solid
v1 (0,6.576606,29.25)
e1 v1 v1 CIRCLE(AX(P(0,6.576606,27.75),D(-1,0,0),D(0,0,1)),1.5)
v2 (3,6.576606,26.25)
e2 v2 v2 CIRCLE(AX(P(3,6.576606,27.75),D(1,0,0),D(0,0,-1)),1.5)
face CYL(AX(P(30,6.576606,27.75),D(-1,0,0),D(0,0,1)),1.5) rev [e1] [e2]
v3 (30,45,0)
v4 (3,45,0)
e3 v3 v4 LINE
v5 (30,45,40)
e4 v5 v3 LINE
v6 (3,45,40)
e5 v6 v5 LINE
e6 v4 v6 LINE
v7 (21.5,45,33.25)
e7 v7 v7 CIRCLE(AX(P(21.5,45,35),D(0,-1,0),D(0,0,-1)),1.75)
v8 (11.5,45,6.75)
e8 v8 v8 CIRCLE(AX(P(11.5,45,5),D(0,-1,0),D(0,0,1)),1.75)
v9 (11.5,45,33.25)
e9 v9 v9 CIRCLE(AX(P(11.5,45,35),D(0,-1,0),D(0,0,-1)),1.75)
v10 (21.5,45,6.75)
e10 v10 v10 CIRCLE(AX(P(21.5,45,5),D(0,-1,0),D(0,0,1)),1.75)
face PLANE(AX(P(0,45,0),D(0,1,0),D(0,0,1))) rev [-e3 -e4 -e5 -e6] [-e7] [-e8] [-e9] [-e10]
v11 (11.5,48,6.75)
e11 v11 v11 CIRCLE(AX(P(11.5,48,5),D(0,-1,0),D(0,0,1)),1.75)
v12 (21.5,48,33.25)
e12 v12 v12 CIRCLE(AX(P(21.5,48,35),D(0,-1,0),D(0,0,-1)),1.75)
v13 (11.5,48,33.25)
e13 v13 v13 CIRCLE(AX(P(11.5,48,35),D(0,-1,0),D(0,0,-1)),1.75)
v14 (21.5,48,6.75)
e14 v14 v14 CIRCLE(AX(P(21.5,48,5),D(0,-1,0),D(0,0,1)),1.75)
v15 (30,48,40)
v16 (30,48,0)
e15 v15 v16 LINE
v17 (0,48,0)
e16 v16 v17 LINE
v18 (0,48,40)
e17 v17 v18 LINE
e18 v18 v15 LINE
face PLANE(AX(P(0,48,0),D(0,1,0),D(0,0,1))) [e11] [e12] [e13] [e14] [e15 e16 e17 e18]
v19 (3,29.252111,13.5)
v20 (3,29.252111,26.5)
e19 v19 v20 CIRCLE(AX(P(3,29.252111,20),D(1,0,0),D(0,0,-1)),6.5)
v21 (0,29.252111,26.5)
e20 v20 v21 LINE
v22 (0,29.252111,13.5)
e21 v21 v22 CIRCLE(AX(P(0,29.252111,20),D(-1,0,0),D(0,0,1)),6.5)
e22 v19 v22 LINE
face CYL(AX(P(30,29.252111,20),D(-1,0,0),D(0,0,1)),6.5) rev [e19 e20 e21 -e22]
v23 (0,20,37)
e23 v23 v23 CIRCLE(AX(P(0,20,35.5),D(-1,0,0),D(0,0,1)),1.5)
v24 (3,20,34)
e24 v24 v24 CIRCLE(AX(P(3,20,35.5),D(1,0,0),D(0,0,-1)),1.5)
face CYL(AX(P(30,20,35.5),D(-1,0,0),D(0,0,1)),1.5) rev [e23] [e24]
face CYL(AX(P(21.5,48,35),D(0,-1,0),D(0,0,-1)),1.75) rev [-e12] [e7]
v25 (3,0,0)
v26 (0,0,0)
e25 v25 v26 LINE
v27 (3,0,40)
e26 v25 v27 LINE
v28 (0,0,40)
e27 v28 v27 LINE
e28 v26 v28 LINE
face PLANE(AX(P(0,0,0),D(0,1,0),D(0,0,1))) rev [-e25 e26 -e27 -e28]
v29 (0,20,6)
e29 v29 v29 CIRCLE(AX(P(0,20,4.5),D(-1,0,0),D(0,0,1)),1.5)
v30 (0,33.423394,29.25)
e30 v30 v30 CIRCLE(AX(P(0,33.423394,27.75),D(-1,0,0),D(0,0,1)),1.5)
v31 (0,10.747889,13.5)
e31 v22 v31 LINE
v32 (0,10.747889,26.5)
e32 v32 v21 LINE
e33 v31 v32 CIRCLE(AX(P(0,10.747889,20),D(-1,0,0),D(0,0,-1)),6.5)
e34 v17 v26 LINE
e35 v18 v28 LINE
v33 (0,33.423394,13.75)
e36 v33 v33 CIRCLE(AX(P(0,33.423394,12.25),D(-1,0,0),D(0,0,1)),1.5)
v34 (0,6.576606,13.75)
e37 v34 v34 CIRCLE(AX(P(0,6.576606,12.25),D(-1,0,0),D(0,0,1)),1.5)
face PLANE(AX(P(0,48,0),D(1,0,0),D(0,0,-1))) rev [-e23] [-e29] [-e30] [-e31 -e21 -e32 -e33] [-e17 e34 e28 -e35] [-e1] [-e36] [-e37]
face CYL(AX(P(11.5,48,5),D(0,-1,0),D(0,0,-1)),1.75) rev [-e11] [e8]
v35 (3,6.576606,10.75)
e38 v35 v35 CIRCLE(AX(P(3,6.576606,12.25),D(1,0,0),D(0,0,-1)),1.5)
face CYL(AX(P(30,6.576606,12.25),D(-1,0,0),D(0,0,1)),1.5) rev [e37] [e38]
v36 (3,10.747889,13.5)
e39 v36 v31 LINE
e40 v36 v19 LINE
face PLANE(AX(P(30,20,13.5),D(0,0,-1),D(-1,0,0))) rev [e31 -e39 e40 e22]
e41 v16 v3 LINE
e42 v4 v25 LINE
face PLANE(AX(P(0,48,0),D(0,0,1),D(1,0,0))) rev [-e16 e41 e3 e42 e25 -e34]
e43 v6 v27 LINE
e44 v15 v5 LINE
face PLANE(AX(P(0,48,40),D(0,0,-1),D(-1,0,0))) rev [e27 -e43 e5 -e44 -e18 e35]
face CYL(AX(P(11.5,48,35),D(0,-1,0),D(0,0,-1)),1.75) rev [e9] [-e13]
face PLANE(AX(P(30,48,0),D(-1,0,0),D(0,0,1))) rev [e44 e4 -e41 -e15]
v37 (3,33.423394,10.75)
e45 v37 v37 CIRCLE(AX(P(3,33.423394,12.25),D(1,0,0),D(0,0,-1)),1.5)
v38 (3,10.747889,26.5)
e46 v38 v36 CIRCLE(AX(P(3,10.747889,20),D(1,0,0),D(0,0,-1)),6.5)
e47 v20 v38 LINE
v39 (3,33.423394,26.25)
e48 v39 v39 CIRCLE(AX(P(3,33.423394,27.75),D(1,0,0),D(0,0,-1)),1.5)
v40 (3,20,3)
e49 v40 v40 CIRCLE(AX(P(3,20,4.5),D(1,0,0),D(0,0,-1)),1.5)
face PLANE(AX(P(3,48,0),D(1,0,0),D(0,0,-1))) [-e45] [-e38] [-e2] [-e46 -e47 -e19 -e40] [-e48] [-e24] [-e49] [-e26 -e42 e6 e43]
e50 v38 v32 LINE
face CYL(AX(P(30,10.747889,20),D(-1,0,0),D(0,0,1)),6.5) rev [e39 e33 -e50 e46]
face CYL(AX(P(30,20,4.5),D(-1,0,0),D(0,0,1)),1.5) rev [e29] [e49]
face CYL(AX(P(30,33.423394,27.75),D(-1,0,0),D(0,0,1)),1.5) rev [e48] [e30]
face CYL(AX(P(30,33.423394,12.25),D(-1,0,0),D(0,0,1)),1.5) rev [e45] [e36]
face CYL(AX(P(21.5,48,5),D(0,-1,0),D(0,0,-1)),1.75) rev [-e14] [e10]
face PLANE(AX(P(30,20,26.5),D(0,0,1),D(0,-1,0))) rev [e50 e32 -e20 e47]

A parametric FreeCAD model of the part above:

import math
import FreeCAD as App
import Part
import Sketcher

V = App.Vector


def faces_at(feature, points):
    """Names of the faces that lie closest to the given points."""
    faces = feature.Shape.Faces
    near = lambda p: min(range(len(faces)), key=lambda i: faces[i].distToShape(Part.Vertex(*p))[0])
    return sorted({f"Face{near(p) + 1}" for p in points})


def add_polygon(sketch, points):
    """Adds a closed chain of lines whose ends are joined by coincident constraints."""
    first, n = sketch.GeometryCount, len(points)
    for a, b in zip(points, points[1:] + points[:1]):
        sketch.addGeometry(Part.LineSegment(App.Vector(*a, 0), App.Vector(*b, 0)), False)
    for i in range(n):
        sketch.addConstraint(Sketcher.Constraint("Coincident", first + i, 2, first + (i + 1) % n, 1))

doc = App.newDocument("Part")
body = doc.addObject("PartDesign::Body", "Body")

sketch1 = body.newObject("Sketcher::SketchObject", "Sketch")
sketch1.AttachmentSupport = (doc.getObject("XZ_Plane"), [""])
sketch1.MapMode = "FlatFace"
add_polygon(sketch1, [(0, 0), (0, 40), (30, 40), (30, 0)])
sketch1.addConstraint([
    Sketcher.Constraint("Vertical", 0),
    Sketcher.Constraint("Horizontal", 1),
    Sketcher.Constraint("Vertical", 2),
    Sketcher.Constraint("Horizontal", 3),
    Sketcher.Constraint("Coincident", 3, 2, -1, 1),
    Sketcher.Constraint("DistanceX", 1, 1, 1, 2, 30.0),
    Sketcher.Constraint("DistanceY", 0, 1, 0, 2, 40.0),
])
pad1 = body.newObject("PartDesign::Pad", "Pad")
pad1.Profile = sketch1
pad1.Length = 48
pad1.Reversed = True
doc.recompute()

thickness = body.newObject("PartDesign::Thickness", "Thickness")
thickness.Base = (pad1, faces_at(pad1, [
    (15, 0, 20),
    (15, 24, 0),
    (30, 24, 20),
    (15, 24, 40),
]))
thickness.Value = 3
thickness.Reversed = True
thickness.Join = "Intersection"

sketch2 = body.newObject("Sketcher::SketchObject", "Sketch001")
sketch2.AttachmentSupport = (doc.getObject("XZ_Plane"), [""])
sketch2.MapMode = "FlatFace"
sketch2.AttachmentOffset = App.Placement(V(0, 0, -45), App.Rotation())
sketch2.addGeometry([
    Part.Circle(V(11.5, 35, 0), V(0, 0, 1), 1.8),
    Part.Circle(V(21.5, 35, 0), V(0, 0, 1), 1.8),
    Part.Circle(V(21.5, 5, 0), V(0, 0, 1), 1.8),
    Part.Circle(V(11.5, 5, 0), V(0, 0, 1), 1.8),
], False)
sketch2.addConstraint([
    Sketcher.Constraint("Equal", 0, 1),
    Sketcher.Constraint("Equal", 1, 2),
    Sketcher.Constraint("Equal", 2, 3),
    Sketcher.Constraint("Horizontal", 0, 3, 1, 3),
    Sketcher.Constraint("Horizontal", 2, 3, 3, 3),
    Sketcher.Constraint("Vertical", 1, 3, 2, 3),
    Sketcher.Constraint("Vertical", 0, 3, 3, 3),
    Sketcher.Constraint("Diameter", 0, 3.5),
    Sketcher.Constraint("DistanceY", -1, 1, 0, 3, 35.0),
    Sketcher.Constraint("DistanceY", -1, 1, 2, 3, 5.0),
    Sketcher.Constraint("DistanceX", 0, 3, 1, 3, 10.0),
    Sketcher.Constraint("DistanceX", -1, 1, 0, 3, 11.5),
])
pocket1 = body.newObject("PartDesign::Pocket", "Pocket")
pocket1.Profile = sketch2
pocket1.Type = "ThroughAll"

sketch3 = body.newObject("Sketcher::SketchObject", "Sketch002")
sketch3.AttachmentSupport = (doc.getObject("YZ_Plane"), [""])
sketch3.MapMode = "FlatFace"
sketch3.addGeometry([
    Part.Circle(V(6.6, 27.8, 0), V(0, 0, 1), 1.5),
    Part.Circle(V(6.6, 12.2, 0), V(0, 0, 1), 1.5),
    Part.Circle(V(20, 4.5, 0), V(0, 0, 1), 1.5),
    Part.Circle(V(33.4, 12.2, 0), V(0, 0, 1), 1.5),
    Part.Circle(V(33.4, 27.8, 0), V(0, 0, 1), 1.5),
    Part.Circle(V(20, 35.5, 0), V(0, 0, 1), 1.5),
    Part.ArcOfCircle(Part.Circle(V(29.3, 20, 0), V(0, 0, 1), 6.5), math.radians(-90), math.radians(90)),
    Part.LineSegment(V(29.3, 13.5, 0), V(10.7, 13.5, 0)),
    Part.ArcOfCircle(Part.Circle(V(10.7, 20, 0), V(0, 0, 1), 6.5), math.radians(90), math.radians(270)),
    Part.LineSegment(V(10.7, 26.5, 0), V(29.3, 26.5, 0)),
], False)
sketch3.addConstraint([
    Sketcher.Constraint("Tangent", 6, 1, 7, 1),
    Sketcher.Constraint("Tangent", 7, 2, 8, 2),
    Sketcher.Constraint("Tangent", 8, 1, 9, 1),
    Sketcher.Constraint("Tangent", 9, 2, 6, 2),
    Sketcher.Constraint("Horizontal", 7),
    Sketcher.Constraint("Horizontal", 9),
    Sketcher.Constraint("Equal", 0, 1),
    Sketcher.Constraint("Equal", 1, 2),
    Sketcher.Constraint("Equal", 2, 3),
    Sketcher.Constraint("Equal", 3, 4),
    Sketcher.Constraint("Equal", 4, 5),
    Sketcher.Constraint("Horizontal", 1, 3, 3, 3),
    Sketcher.Constraint("Horizontal", 0, 3, 4, 3),
    Sketcher.Constraint("Vertical", 0, 3, 1, 3),
    Sketcher.Constraint("Vertical", 3, 3, 4, 3),
    Sketcher.Constraint("Vertical", 2, 3, 5, 3),
    Sketcher.Constraint("Diameter", 0, 3.0),
    Sketcher.Constraint("Radius", 6, 6.5),
    Sketcher.Constraint("DistanceX", -1, 1, 2, 3, 20.0),
    Sketcher.Constraint("DistanceY", -1, 1, 6, 3, 20.0),
    Sketcher.Constraint("DistanceY", 2, 3, 5, 3, 31.0),
    Sketcher.Constraint("DistanceY", 2, 3, 6, 1, 9.0),
    Sketcher.Constraint("DistanceY", 1, 3, 0, 3, 15.5),
    Sketcher.Constraint("DistanceY", -1, 1, 0, 3, 27.75),
    Sketcher.Constraint("DistanceX", 7, 2, 7, 1, 18.504221),
    Sketcher.Constraint("DistanceX", -1, 1, 6, 3, 29.252111),
    Sketcher.Constraint("DistanceX", -1, 1, 0, 3, 6.576606),
    Sketcher.Constraint("DistanceX", -1, 1, 3, 3, 33.423394),
])
pocket2 = body.newObject("PartDesign::Pocket", "Pocket001")
pocket2.Profile = sketch3
pocket2.Type = "ThroughAll"
pocket2.Reversed = True

doc.recompute()
